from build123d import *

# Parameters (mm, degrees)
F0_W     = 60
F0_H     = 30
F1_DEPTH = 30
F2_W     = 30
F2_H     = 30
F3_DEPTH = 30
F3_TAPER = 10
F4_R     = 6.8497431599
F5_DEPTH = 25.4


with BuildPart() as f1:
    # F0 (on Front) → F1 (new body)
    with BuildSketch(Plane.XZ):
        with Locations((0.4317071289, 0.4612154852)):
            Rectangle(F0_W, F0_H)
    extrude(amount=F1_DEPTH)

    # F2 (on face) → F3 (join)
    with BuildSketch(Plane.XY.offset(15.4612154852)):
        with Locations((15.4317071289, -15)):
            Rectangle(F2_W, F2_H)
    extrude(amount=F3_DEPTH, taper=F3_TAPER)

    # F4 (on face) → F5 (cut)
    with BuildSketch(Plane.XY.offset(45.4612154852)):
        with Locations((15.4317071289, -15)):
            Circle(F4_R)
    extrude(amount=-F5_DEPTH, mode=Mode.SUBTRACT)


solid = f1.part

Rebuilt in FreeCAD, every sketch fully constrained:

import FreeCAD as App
import Part
import Sketcher

V = App.Vector
Q = App.Units.Quantity

doc = App.newDocument("Part")
params = doc.addObject("Spreadsheet::Sheet", "Params")
for row, (alias, value) in enumerate([
    ("sketch1_width", "60 mm"),
    ("sketch1_height", "30 mm"),
    ("pad1_length", "30 mm"),
    ("sketch2_width", "30 mm"),
    ("pad2_length", "30 mm"),
    ("pad2_taper", "-10 deg"),
    ("pocket1_length", "25.4 mm"),
], start=1):
    params.set(f"A{row}", alias)
    params.set(f"B{row}", "=" + value)
    params.setAlias(f"B{row}", alias)

body = doc.addObject("PartDesign::Body", "Body")

# Sketch on XZ plane
sketch1 = doc.addObject("Sketcher::SketchObject", "Sketch")
body.addObject(sketch1)
sketch1.AttachmentSupport = (doc.XZ_Plane, [""])
sketch1.MapMode = "FlatFace"
sketch1.addGeometry([
    Part.LineSegment(V(-30, 15, 0), V(-30, -15, 0)),
    Part.LineSegment(V(-30, -15, 0), V(30, -15, 0)),
    Part.LineSegment(V(30, -15, 0), V(30, 15, 0)),
    Part.LineSegment(V(30, 15, 0), V(-30, 15, 0)),
], False)
sketch1.addConstraint([
    Sketcher.Constraint("Coincident", 0, 2, 1, 1),
    Sketcher.Constraint("Coincident", 1, 2, 2, 1),
    Sketcher.Constraint("Coincident", 2, 2, 3, 1),
    Sketcher.Constraint("Coincident", 3, 2, 0, 1),
    Sketcher.Constraint("Vertical", 0),
    Sketcher.Constraint("Horizontal", 1),
    Sketcher.Constraint("Vertical", 2),
    Sketcher.Constraint("Horizontal", 3),
    Sketcher.Constraint("DistanceX", 1, 1, 1, 2, Q("60 mm")),
    Sketcher.Constraint("DistanceY", 0, 2, 0, 1, Q("30 mm")),
    Sketcher.Constraint("DistanceX", 0, 2, -1, 1, Q("29.568293 mm")),
    Sketcher.Constraint("DistanceY", 0, 2, -1, 1, Q("14.538785 mm")),
])
sketch1.setExpression("Constraints[8]", "Params.sketch1_width")
sketch1.setExpression("Constraints[9]", "Params.sketch1_height")
pad1 = doc.addObject("PartDesign::Pad", "Pad")
body.addObject(pad1)
pad1.Profile = sketch1
pad1.setExpression("Length", "Params.pad1_length")

# Sketch on XY plane
sketch2 = doc.addObject("Sketcher::SketchObject", "Sketch001")
body.addObject(sketch2)
sketch2.AttachmentSupport = (doc.XY_Plane, [""])
sketch2.MapMode = "FlatFace"
sketch2.AttachmentOffset = App.Placement(V(0, 0, 15.461215), App.Rotation())
sketch2.addGeometry([
    Part.LineSegment(V(0, 0, 0), V(0, -30, 0)),
    Part.LineSegment(V(0, -30, 0), V(30, -30, 0)),
    Part.LineSegment(V(30, -30, 0), V(30, 0, 0)),
    Part.LineSegment(V(30, 0, 0), V(0, 0, 0)),
], False)
sketch2.addConstraint([
    Sketcher.Constraint("Coincident", 0, 2, 1, 1),
    Sketcher.Constraint("Coincident", 1, 2, 2, 1),
    Sketcher.Constraint("Coincident", 2, 2, 3, 1),
    Sketcher.Constraint("Coincident", 3, 2, 0, 1),
    Sketcher.Constraint("Vertical", 0),
    Sketcher.Constraint("Horizontal", 1),
    Sketcher.Constraint("Vertical", 2),
    Sketcher.Constraint("Horizontal", 3),
    Sketcher.Constraint("PointOnObject", 2, 2, -1),
    Sketcher.Constraint("Equal", 3, 0),
    Sketcher.Constraint("DistanceX", 1, 1, 1, 2, Q("30 mm")),
    Sketcher.Constraint("DistanceX", -1, 1, 0, 2, Q("0.431707 mm")),
])
sketch2.setExpression("Constraints[10]", "Params.sketch2_width")
pad2 = doc.addObject("PartDesign::Pad", "Pad001")
body.addObject(pad2)
pad2.Profile = sketch2
pad2.setExpression("Length", "Params.pad2_length")
pad2.setExpression("TaperAngle", "Params.pad2_taper")

# Sketch on XY plane
sketch3 = doc.addObject("Sketcher::SketchObject", "Sketch002")
body.addObject(sketch3)
sketch3.AttachmentSupport = (doc.XY_Plane, [""])
sketch3.MapMode = "FlatFace"
sketch3.AttachmentOffset = App.Placement(V(0, 0, 45.461215), App.Rotation())
sketch3.addGeometry(Part.Circle(V(15, -15, 0), V(0, 0, 1), 7), False)
sketch3.addConstraint([
    Sketcher.Constraint("DistanceY", 0, 3, -1, 1, Q("15 mm")),
    Sketcher.Constraint("Diameter", 0, Q("13.699486 mm")),
    Sketcher.Constraint("DistanceX", -1, 1, 0, 3, Q("15.431707 mm")),
])
pocket1 = doc.addObject("PartDesign::Pocket", "Pocket")
body.addObject(pocket1)
pocket1.Profile = sketch3
pocket1.setExpression("Length", "Params.pocket1_length")

doc.recompute()
